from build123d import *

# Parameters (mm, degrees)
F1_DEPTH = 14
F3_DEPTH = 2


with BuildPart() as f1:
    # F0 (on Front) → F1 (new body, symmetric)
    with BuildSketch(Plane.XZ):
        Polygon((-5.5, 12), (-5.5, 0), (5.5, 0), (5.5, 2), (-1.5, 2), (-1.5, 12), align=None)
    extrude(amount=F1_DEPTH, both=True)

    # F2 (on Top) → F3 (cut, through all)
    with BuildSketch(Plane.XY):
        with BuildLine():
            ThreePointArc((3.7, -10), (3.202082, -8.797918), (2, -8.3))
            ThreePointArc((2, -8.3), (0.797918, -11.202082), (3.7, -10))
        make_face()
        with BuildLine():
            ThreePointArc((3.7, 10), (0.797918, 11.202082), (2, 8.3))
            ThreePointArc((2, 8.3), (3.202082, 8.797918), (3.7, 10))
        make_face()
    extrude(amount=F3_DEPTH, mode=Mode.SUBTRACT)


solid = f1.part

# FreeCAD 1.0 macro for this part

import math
import FreeCAD as App
import Part
import Sketcher


def add_polygon(sketch, points):
    """Adds a closed chain of lines whose ends are joined by coincident constraints."""
    first, n = sketch.GeometryCount, len(points)
    for a, b in zip(points, points[1:] + points[:1]):
        sketch.addGeometry(Part.LineSegment(App.Vector(*a, 0), App.Vector(*b, 0)), False)
    for i in range(n):
        sketch.addConstraint(Sketcher.Constraint("Coincident", first + i, 2, first + (i + 1) % n, 1))

doc = App.newDocument("Part")
body = doc.addObject("PartDesign::Body", "Body")

sketch1 = doc.addObject("Sketcher::SketchObject", "Sketch")
body.addObject(sketch1)
sketch1.AttachmentSupport = (doc.XZ_Plane, [""])
sketch1.MapMode = "FlatFace"
add_polygon(sketch1, [(-5.5, 12), (-5.5, 0), (5.5, 0), (5.5, 2), (-1.5, 2), (-1.5, 12)])
sketch1.addConstraint([
    Sketcher.Constraint("Vertical", 0),
    Sketcher.Constraint("Horizontal", 1),
    Sketcher.Constraint("Vertical", 2),
    Sketcher.Constraint("Horizontal", 3),
    Sketcher.Constraint("Vertical", 4),
    Sketcher.Constraint("Horizontal", 5),
    Sketcher.Constraint("Symmetric", 0, 2, 1, 2, -1, 1),
    Sketcher.Constraint("DistanceX", 1, 1, 1, 2, 11.0),
    Sketcher.Constraint("DistanceX", 3, 2, 3, 1, 7.0),
    Sketcher.Constraint("DistanceY", 0, 2, 0, 1, 12.0),
    Sketcher.Constraint("DistanceY", 2, 1, 2, 2, 2.0),
])
pad1 = doc.addObject("PartDesign::Pad", "Pad")
body.addObject(pad1)
pad1.Profile = sketch1
pad1.Length = 28
pad1.Midplane = True

sketch2 = doc.addObject("Sketcher::SketchObject", "Sketch001")
body.addObject(sketch2)
sketch2.AttachmentSupport = (doc.XY_Plane, [""])
sketch2.MapMode = "FlatFace"
sketch2.addGeometry([
    Part.ArcOfCircle(Part.Circle(App.Vector(2, -10, 0), App.Vector(0, 0, 1), 1.7), math.radians(0), math.radians(90)),
    Part.ArcOfCircle(Part.Circle(App.Vector(2, -10, 0), App.Vector(0, 0, 1), 1.7), math.radians(90), math.radians(360)),
    Part.ArcOfCircle(Part.Circle(App.Vector(2, 10, 0), App.Vector(0, 0, 1), 1.7), math.radians(0), math.radians(270)),
    Part.ArcOfCircle(Part.Circle(App.Vector(2, 10, 0), App.Vector(0, 0, 1), 1.7), math.radians(-90), math.radians(0)),
], False)
sketch2.addConstraint([
    Sketcher.Constraint("Tangent", 0, 1, 1, 2),
    Sketcher.Constraint("Coincident", 1, 1, 0, 2),
    Sketcher.Constraint("Tangent", 2, 1, 3, 2),
    Sketcher.Constraint("Coincident", 3, 1, 2, 2),
    Sketcher.Constraint("Equal", 1, 2),
    Sketcher.Constraint("Symmetric", 0, 3, 2, 3, -1),
    Sketcher.Constraint("Horizontal", 1, 3, 0, 1),
    Sketcher.Constraint("Horizontal", 3, 3, 2, 1),
    Sketcher.Constraint("Vertical", 3, 3, 1, 1),
    Sketcher.Constraint("Vertical", 1, 1, 3, 1),
    Sketcher.Constraint("Radius", 0, 1.699998),
    Sketcher.Constraint("DistanceX", -1, 1, 0, 3, 2.000002),
    Sketcher.Constraint("DistanceY", 0, 3, -1, 1, 9.999998),
])
pocket1 = doc.addObject("PartDesign::Pocket", "Pocket")
body.addObject(pocket1)
pocket1.Profile = sketch2
pocket1.Type = "ThroughAll"
pocket1.Reversed = True

doc.recompute()
